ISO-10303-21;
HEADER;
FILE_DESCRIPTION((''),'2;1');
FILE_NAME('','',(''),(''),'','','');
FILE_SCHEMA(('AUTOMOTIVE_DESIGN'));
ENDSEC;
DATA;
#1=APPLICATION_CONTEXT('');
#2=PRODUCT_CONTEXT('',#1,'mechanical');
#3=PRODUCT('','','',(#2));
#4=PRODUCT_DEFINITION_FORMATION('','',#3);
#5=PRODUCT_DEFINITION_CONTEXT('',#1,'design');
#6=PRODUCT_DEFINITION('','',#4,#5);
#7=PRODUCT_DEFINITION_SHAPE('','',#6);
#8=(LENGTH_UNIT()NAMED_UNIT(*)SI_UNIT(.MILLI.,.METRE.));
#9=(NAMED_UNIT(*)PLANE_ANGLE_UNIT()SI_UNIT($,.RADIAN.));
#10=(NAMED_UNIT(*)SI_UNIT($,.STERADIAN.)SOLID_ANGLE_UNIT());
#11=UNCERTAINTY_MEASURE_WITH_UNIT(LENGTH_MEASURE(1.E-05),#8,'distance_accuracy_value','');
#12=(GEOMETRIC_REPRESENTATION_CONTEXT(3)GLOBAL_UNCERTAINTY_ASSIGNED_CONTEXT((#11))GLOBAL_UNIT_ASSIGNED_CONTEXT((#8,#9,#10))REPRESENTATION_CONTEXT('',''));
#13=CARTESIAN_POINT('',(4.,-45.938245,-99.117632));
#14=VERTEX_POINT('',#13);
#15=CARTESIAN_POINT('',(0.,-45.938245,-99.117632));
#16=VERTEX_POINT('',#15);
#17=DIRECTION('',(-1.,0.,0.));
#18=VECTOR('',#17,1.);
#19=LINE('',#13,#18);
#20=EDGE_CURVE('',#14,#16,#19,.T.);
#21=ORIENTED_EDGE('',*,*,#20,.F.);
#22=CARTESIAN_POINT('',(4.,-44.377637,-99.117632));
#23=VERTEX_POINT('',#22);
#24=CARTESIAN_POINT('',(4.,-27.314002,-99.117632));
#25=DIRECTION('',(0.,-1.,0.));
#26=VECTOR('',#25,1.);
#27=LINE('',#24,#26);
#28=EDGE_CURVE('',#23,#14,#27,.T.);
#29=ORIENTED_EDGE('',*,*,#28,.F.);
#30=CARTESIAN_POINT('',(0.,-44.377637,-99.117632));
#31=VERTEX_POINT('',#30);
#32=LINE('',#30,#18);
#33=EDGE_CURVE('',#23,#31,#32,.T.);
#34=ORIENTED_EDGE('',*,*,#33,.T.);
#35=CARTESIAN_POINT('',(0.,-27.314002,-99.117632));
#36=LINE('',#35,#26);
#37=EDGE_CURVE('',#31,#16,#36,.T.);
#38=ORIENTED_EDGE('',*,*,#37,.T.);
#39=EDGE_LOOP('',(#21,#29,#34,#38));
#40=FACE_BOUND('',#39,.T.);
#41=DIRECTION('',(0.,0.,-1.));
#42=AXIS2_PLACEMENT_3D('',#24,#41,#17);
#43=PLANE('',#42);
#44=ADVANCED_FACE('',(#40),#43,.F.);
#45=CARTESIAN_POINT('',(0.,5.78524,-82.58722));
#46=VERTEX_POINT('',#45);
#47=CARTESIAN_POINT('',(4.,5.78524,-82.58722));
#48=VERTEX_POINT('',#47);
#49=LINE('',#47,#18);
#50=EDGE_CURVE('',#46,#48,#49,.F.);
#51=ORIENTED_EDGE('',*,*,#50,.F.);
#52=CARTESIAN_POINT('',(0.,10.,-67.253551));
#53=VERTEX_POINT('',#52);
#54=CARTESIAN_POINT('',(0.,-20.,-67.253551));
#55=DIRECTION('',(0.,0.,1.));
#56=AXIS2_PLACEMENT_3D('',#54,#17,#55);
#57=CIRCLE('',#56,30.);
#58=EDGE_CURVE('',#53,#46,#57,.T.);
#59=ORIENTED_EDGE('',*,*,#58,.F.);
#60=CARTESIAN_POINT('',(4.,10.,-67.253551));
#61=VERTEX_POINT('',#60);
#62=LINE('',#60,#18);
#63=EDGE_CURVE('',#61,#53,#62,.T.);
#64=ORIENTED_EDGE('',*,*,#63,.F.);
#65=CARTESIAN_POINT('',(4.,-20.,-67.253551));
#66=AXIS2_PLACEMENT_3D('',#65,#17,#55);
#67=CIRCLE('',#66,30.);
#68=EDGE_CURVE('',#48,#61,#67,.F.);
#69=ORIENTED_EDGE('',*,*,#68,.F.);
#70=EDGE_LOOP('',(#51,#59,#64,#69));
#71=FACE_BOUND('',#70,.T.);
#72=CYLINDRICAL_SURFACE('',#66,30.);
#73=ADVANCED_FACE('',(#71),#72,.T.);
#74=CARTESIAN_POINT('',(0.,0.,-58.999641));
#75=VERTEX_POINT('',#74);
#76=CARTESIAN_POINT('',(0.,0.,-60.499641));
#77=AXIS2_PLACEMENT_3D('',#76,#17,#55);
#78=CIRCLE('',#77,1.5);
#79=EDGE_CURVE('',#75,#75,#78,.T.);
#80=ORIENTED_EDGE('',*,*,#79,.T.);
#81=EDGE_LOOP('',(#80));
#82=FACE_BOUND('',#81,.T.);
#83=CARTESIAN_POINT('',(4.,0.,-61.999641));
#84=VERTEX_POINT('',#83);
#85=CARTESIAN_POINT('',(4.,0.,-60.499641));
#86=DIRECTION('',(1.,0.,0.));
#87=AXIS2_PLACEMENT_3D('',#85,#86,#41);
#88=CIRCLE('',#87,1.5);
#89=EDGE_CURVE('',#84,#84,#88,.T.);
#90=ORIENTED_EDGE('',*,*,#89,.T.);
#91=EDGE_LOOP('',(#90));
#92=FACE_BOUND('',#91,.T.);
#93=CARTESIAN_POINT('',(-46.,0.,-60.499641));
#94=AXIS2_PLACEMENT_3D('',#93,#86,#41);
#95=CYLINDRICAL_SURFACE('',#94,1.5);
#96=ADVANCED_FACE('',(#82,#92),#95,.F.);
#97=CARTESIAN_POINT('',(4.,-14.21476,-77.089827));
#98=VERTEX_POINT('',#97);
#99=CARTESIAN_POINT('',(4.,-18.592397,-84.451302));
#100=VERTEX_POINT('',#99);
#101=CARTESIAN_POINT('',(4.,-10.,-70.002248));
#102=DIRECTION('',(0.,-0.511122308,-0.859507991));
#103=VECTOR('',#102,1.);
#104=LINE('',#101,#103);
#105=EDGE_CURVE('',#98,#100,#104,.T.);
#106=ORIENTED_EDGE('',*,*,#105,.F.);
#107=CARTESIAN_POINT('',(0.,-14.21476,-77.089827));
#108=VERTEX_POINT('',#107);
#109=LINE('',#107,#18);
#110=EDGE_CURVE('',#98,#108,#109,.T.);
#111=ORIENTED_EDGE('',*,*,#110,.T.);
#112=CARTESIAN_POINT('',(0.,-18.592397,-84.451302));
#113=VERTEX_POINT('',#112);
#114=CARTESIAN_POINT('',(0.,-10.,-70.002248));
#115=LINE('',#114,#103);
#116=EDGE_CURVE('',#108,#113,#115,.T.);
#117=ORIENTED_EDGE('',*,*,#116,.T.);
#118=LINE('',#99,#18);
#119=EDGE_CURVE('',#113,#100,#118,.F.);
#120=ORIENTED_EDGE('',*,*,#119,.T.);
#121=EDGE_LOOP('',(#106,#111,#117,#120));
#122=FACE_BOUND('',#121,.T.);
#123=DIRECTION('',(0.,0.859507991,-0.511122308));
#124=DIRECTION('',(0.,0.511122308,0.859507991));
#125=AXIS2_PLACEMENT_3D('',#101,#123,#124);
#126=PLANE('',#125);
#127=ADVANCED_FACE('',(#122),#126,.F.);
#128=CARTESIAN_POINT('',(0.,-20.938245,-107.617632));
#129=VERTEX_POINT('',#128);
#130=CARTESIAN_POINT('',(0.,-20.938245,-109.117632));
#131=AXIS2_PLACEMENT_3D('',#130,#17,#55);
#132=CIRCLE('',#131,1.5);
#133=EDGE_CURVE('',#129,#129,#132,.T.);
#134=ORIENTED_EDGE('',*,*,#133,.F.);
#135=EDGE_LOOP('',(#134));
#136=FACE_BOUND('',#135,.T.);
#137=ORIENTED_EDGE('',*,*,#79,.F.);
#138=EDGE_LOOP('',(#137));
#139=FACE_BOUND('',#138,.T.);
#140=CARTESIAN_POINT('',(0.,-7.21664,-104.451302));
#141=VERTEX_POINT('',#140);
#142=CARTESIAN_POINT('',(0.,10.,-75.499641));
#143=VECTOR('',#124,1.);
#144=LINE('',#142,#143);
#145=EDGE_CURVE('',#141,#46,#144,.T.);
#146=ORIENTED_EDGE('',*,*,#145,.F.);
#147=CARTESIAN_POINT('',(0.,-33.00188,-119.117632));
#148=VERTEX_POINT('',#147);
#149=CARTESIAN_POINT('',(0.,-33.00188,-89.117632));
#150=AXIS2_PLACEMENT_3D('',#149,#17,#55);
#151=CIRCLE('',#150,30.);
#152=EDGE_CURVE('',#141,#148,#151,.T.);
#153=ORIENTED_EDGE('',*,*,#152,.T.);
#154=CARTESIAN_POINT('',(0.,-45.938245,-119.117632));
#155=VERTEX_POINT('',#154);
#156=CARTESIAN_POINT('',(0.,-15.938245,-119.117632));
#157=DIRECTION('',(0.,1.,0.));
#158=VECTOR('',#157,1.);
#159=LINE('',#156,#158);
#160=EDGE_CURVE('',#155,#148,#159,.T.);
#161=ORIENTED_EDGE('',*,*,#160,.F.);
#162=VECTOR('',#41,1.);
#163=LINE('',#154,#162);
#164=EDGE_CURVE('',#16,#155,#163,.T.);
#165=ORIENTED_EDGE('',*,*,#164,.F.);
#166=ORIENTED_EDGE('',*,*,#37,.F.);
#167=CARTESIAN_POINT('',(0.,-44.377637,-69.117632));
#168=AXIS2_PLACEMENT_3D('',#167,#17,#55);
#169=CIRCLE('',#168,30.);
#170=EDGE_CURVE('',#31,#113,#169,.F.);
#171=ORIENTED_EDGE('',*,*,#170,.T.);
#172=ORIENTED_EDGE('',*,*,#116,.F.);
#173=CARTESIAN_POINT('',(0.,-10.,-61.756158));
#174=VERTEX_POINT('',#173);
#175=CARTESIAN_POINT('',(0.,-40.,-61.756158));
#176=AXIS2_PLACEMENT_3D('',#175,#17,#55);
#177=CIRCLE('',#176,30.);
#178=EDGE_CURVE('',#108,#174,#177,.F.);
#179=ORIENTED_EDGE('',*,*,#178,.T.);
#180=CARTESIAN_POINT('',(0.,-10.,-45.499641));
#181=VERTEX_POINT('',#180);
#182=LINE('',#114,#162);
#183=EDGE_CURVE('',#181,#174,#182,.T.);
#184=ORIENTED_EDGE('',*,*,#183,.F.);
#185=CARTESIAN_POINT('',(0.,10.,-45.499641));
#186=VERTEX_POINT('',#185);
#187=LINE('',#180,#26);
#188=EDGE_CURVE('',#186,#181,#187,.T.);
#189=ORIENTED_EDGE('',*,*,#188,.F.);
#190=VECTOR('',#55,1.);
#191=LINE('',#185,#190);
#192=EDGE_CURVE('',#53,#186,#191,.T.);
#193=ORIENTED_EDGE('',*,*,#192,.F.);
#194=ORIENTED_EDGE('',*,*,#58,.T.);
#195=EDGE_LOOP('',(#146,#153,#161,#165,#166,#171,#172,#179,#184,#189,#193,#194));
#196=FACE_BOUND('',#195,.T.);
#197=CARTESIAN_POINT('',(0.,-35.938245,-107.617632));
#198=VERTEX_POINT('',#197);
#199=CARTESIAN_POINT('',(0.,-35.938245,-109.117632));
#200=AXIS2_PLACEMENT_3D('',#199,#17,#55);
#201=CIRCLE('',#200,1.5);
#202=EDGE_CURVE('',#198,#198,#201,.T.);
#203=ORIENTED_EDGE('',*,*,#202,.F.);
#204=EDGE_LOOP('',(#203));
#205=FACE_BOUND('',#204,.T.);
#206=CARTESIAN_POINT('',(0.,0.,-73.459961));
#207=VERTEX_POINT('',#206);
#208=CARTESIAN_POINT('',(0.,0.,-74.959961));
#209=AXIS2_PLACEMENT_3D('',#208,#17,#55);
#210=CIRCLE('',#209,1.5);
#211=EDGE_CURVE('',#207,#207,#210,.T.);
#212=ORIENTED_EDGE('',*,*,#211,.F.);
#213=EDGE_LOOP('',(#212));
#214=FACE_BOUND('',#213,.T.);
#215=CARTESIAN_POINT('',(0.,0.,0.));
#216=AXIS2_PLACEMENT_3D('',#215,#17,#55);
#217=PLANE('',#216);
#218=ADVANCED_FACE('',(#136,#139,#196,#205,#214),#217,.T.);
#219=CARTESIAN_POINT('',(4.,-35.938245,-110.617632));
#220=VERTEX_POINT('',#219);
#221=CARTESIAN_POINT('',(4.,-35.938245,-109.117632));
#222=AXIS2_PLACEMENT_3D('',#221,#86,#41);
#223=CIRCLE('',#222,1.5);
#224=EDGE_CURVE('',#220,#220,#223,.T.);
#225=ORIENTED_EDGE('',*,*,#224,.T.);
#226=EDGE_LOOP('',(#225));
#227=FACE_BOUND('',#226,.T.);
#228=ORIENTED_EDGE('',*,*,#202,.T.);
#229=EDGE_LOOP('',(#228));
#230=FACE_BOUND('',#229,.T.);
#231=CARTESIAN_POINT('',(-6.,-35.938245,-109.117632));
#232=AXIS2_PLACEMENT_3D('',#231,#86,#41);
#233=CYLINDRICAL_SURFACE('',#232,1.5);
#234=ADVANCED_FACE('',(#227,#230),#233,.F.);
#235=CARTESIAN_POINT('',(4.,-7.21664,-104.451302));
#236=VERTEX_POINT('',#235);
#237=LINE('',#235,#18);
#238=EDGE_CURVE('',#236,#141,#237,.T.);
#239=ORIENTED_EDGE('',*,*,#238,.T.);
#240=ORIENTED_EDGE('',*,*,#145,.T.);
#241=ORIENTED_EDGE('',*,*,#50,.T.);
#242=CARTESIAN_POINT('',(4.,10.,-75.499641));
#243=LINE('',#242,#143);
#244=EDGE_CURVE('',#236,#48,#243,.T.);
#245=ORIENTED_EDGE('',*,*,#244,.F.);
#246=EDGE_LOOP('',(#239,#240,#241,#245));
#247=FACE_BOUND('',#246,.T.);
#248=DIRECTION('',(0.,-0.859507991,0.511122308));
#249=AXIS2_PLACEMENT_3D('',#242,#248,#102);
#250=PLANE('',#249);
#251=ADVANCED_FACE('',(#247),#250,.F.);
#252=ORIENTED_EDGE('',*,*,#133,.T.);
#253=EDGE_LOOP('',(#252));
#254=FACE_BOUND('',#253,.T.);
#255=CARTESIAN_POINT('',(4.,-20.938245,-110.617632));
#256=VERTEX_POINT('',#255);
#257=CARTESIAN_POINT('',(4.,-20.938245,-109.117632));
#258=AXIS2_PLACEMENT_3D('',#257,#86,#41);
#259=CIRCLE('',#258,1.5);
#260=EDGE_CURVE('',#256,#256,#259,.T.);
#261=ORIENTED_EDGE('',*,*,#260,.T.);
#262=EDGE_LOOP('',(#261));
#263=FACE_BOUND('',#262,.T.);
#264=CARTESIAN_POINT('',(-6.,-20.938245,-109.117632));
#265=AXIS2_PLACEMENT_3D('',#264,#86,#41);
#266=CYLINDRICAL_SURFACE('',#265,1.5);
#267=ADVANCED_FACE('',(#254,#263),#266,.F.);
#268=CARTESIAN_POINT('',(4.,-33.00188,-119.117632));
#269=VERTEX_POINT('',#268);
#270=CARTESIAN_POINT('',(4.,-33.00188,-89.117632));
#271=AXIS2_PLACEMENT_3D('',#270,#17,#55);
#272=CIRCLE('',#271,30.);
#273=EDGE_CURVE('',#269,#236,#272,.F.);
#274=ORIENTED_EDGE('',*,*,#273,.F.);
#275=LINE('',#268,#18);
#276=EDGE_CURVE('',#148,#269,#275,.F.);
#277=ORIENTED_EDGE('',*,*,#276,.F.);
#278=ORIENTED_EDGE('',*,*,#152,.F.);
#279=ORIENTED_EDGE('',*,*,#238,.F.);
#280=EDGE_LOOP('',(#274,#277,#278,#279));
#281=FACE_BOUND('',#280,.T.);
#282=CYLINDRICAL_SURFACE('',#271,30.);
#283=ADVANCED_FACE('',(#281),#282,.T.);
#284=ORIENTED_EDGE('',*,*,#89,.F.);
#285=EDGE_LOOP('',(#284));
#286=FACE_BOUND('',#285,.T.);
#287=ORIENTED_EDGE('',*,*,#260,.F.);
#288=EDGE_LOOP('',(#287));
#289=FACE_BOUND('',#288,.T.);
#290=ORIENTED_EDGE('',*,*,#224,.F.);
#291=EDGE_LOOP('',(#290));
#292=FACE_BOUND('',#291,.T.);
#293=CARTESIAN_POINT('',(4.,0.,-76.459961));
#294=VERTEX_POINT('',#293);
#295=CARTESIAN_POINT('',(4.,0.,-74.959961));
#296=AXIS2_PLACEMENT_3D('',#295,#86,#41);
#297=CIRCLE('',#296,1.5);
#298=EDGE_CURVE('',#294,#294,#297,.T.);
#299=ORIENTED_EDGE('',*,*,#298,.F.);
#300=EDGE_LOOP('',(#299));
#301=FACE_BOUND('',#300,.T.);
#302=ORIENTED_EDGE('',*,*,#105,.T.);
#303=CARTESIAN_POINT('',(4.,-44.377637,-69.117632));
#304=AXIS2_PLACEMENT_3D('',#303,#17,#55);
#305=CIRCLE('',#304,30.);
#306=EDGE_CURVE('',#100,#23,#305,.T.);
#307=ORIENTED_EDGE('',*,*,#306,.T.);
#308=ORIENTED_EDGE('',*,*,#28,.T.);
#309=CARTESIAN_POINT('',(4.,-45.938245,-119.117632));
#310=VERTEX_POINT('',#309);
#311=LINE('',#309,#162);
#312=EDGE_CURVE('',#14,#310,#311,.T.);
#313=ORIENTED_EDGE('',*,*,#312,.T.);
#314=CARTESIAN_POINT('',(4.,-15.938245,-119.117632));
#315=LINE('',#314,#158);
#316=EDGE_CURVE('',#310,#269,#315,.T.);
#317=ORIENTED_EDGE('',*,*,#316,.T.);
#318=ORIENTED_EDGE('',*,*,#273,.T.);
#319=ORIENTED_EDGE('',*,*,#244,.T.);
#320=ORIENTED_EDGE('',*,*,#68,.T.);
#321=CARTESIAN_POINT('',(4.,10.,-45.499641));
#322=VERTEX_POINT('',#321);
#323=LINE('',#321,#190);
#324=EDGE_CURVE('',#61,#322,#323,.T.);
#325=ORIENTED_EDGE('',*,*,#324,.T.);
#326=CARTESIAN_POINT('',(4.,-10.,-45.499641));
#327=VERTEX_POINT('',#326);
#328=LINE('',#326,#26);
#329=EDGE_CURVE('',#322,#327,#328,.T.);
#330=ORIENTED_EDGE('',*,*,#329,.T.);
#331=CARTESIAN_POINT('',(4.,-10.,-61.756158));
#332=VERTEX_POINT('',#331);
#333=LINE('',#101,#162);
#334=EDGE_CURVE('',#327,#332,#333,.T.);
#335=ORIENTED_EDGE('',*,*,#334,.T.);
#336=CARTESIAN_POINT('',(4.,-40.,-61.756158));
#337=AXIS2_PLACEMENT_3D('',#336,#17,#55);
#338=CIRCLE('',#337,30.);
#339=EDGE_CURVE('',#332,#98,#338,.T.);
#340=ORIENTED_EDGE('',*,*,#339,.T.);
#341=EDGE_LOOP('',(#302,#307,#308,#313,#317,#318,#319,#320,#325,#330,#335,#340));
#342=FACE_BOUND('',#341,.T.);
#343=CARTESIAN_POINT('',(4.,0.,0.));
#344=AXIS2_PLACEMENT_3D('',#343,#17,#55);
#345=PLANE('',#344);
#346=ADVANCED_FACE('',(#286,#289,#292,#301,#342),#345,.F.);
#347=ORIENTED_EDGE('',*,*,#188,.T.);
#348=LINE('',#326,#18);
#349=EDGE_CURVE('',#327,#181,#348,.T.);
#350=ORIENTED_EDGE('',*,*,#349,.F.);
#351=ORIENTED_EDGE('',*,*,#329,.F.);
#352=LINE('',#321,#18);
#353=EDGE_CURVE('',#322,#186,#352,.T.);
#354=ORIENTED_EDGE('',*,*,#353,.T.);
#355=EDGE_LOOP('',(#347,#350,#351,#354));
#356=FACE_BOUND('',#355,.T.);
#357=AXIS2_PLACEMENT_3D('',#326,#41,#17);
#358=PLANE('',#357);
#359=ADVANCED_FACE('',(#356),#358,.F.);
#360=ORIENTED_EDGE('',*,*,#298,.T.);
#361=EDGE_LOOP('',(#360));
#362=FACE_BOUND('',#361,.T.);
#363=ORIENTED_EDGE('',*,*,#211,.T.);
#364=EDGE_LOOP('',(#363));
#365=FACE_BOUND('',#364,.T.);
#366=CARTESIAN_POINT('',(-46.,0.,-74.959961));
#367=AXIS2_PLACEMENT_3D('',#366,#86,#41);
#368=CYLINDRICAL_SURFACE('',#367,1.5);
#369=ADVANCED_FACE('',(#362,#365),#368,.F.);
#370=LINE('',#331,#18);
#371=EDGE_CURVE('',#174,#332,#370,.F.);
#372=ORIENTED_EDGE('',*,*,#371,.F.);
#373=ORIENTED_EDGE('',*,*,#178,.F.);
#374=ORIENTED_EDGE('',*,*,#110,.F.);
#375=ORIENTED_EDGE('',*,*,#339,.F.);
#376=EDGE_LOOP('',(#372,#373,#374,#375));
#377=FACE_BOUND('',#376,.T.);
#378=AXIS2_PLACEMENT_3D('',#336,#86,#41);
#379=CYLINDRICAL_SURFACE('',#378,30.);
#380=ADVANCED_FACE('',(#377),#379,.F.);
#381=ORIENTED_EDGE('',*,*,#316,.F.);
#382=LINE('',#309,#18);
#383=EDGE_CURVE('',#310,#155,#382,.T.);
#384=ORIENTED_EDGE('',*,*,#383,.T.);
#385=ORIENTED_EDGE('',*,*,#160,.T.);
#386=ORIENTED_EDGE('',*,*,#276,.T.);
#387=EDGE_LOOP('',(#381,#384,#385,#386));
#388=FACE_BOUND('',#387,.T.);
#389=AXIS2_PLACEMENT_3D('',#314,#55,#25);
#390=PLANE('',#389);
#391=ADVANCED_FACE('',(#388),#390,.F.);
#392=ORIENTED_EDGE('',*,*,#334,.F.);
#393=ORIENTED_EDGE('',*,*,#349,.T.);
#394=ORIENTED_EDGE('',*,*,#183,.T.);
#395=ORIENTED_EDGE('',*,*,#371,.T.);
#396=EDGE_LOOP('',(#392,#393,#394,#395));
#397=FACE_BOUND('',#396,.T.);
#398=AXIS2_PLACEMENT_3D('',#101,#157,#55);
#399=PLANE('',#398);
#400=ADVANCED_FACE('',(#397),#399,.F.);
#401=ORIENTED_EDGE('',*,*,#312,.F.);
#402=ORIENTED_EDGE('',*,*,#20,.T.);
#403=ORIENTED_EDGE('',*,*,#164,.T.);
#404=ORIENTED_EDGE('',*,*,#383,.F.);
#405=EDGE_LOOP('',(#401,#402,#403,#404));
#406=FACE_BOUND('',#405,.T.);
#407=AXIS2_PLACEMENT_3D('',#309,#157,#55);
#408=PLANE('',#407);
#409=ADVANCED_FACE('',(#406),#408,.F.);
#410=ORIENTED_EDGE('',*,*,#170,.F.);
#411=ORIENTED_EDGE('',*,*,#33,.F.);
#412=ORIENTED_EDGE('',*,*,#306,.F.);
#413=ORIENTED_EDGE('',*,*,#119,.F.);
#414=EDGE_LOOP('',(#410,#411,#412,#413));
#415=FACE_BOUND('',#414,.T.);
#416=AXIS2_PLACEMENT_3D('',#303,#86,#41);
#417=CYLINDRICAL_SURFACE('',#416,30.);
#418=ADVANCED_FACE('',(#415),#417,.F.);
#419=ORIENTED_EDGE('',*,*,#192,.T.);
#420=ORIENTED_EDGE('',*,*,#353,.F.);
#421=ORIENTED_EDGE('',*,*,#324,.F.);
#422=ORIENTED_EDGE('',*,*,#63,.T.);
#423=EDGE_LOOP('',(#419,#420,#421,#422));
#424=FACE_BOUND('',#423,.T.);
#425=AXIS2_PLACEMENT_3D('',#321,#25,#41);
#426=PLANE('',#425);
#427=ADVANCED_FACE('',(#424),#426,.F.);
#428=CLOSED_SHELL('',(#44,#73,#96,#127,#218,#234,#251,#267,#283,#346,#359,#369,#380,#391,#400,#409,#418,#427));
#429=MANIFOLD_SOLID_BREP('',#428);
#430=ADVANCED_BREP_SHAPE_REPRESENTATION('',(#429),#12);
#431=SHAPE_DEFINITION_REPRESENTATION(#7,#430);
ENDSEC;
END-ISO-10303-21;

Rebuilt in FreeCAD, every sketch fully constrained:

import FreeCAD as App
import Part
import Sketcher
Q = App.Units.Quantity


def edges_at(feature, points):
    """Names of the edges that pass closest to the given points."""
    edges = feature.Shape.Edges
    near = lambda p: min(range(len(edges)), key=lambda i: edges[i].distToShape(Part.Vertex(*p))[0])
    return sorted({f"Edge{near(p) + 1}" for p in points})

doc = App.newDocument("Part")
body = doc.addObject("PartDesign::Body", "Body")

# Sketch on YZ plane
sketch1 = doc.addObject("Sketcher::SketchObject", "Sketch")
body.addObject(sketch1)
sketch1.AttachmentSupport = (doc.YZ_Plane, [""])
sketch1.MapMode = "FlatFace"
sketch1.addGeometry([
    Part.LineSegment(App.Vector(10, -75.499641, 0), App.Vector(10, -45.499641, 0)),  # 0
    Part.LineSegment(App.Vector(10, -45.499641, 0), App.Vector(-10, -45.499641, 0)),  # 1
    Part.LineSegment(App.Vector(-10, -45.499641, 0), App.Vector(-10, -70.002248, 0)),  # 2
    Part.LineSegment(App.Vector(-10, -70.002248, 0), App.Vector(-27.314002, -99.117632, 0)),  # 3
    Part.LineSegment(App.Vector(-27.314002, -99.117632, 0), App.Vector(-45.938245, -99.117632, 0)),  # 4
    Part.LineSegment(App.Vector(-45.938245, -99.117632, 0), App.Vector(-45.938245, -119.117632, 0)),  # 5
    Part.LineSegment(App.Vector(-45.938245, -119.117632, 0), App.Vector(-15.938245, -119.117632, 0)),  # 6
    Part.LineSegment(App.Vector(-15.938245, -119.117632, 0), App.Vector(10, -75.499641, 0)),  # 7
], False)
sketch1.addConstraint([
    Sketcher.Constraint("Coincident", 0, 2, 1, 1),
    Sketcher.Constraint("Coincident", 1, 2, 2, 1),
    Sketcher.Constraint("Coincident", 2, 2, 3, 1),
    Sketcher.Constraint("Coincident", 3, 2, 4, 1),
    Sketcher.Constraint("Coincident", 4, 2, 5, 1),
    Sketcher.Constraint("Coincident", 5, 2, 6, 1),
    Sketcher.Constraint("Coincident", 6, 2, 7, 1),
    Sketcher.Constraint("Coincident", 7, 2, 0, 1),
    Sketcher.Constraint("Vertical", 0),
    Sketcher.Constraint("Horizontal", 1),
    Sketcher.Constraint("Vertical", 2),
    Sketcher.Constraint("Horizontal", 4),
    Sketcher.Constraint("Vertical", 5),
    Sketcher.Constraint("Horizontal", 6),
    Sketcher.Constraint("Parallel", 3, 7),
    Sketcher.Constraint("Equal", 6, 0),
    Sketcher.Constraint("Equal", 1, 5),
    Sketcher.Constraint("DistanceX", 1, 2, 1, 1, Q("20 mm")),
    Sketcher.Constraint("DistanceX", 6, 1, 6, 2, Q("30 mm")),
    Sketcher.Constraint("DistanceX", -1, 1, 0, 2, Q("10 mm")),
    Sketcher.Constraint("DistanceX", 3, 2, -1, 1, Q("27.314002 mm")),
    Sketcher.Constraint("Distance", 3, Q("33.874478 mm")),
    Sketcher.Constraint("Distance", 7, Q("50.747628 mm")),
    Sketcher.Constraint("DistanceY", 0, 2, -1, 1, Q("45.499641 mm")),
])
pad1 = doc.addObject("PartDesign::Pad", "Pad")
body.addObject(pad1)
pad1.Profile = sketch1
pad1.Length = 4
doc.recompute()

fillet = doc.addObject("PartDesign::Fillet", "Fillet")
body.addObject(fillet)
fillet.Base = (pad1, edges_at(pad1, [
    (2, -27.314, -99.118),
    (2, -10, -70.002),
    (2, 10, -75.5),
    (2, -15.938, -119.118),
]))
fillet.Radius = 30

# Sketch on YZ plane
sketch2 = doc.addObject("Sketcher::SketchObject", "Sketch001")
body.addObject(sketch2)
sketch2.AttachmentSupport = (doc.YZ_Plane, [""])
sketch2.MapMode = "FlatFace"
sketch2.AttachmentOffset = App.Placement(App.Vector(0, 0, 4), App.Rotation())
sketch2.addGeometry([
    Part.Circle(App.Vector(0, -60.499641, 0), App.Vector(0, 0, 1), 1.5),
    Part.Circle(App.Vector(0, -74.959961, 0), App.Vector(0, 0, 1), 1.5),
], False)
sketch2.addConstraint([
    Sketcher.Constraint("Equal", 0, 1),
    Sketcher.Constraint("PointOnObject", 0, 3, -2),
    Sketcher.Constraint("PointOnObject", 1, 3, -2),
    Sketcher.Constraint("Diameter", 0, Q("3 mm")),
    Sketcher.Constraint("DistanceY", 0, 3, -1, 1, Q("60.499641 mm")),
    Sketcher.Constraint("DistanceY", 1, 3, -1, 1, Q("74.959961 mm")),
])
pocket1 = doc.addObject("PartDesign::Pocket", "Pocket")
body.addObject(pocket1)
pocket1.Profile = sketch2
pocket1.Length = 50

# Sketch on YZ plane
sketch3 = doc.addObject("Sketcher::SketchObject", "Sketch002")
body.addObject(sketch3)
sketch3.AttachmentSupport = (doc.YZ_Plane, [""])
sketch3.MapMode = "FlatFace"
sketch3.AttachmentOffset = App.Placement(App.Vector(0, 0, 4), App.Rotation())
sketch3.addGeometry([
    Part.Circle(App.Vector(-35.938245, -109.117632, 0), App.Vector(0, 0, 1), 1.5),
    Part.Circle(App.Vector(-20.938245, -109.117632, 0), App.Vector(0, 0, 1), 1.5),
], False)
sketch3.addConstraint([
    Sketcher.Constraint("Equal", 0, 1),
    Sketcher.Constraint("Horizontal", 0, 3, 1, 3),
    Sketcher.Constraint("Diameter", 0, Q("3 mm")),
    Sketcher.Constraint("DistanceX", 0, 3, 1, 3, Q("15 mm")),
    Sketcher.Constraint("DistanceX", 0, 3, -1, 1, Q("35.938245 mm")),
    Sketcher.Constraint("DistanceY", 0, 3, -1, 1, Q("109.117632 mm")),
])
pocket2 = doc.addObject("PartDesign::Pocket", "Pocket001")
body.addObject(pocket2)
pocket2.Profile = sketch3
pocket2.Length = 10

doc.recompute()
